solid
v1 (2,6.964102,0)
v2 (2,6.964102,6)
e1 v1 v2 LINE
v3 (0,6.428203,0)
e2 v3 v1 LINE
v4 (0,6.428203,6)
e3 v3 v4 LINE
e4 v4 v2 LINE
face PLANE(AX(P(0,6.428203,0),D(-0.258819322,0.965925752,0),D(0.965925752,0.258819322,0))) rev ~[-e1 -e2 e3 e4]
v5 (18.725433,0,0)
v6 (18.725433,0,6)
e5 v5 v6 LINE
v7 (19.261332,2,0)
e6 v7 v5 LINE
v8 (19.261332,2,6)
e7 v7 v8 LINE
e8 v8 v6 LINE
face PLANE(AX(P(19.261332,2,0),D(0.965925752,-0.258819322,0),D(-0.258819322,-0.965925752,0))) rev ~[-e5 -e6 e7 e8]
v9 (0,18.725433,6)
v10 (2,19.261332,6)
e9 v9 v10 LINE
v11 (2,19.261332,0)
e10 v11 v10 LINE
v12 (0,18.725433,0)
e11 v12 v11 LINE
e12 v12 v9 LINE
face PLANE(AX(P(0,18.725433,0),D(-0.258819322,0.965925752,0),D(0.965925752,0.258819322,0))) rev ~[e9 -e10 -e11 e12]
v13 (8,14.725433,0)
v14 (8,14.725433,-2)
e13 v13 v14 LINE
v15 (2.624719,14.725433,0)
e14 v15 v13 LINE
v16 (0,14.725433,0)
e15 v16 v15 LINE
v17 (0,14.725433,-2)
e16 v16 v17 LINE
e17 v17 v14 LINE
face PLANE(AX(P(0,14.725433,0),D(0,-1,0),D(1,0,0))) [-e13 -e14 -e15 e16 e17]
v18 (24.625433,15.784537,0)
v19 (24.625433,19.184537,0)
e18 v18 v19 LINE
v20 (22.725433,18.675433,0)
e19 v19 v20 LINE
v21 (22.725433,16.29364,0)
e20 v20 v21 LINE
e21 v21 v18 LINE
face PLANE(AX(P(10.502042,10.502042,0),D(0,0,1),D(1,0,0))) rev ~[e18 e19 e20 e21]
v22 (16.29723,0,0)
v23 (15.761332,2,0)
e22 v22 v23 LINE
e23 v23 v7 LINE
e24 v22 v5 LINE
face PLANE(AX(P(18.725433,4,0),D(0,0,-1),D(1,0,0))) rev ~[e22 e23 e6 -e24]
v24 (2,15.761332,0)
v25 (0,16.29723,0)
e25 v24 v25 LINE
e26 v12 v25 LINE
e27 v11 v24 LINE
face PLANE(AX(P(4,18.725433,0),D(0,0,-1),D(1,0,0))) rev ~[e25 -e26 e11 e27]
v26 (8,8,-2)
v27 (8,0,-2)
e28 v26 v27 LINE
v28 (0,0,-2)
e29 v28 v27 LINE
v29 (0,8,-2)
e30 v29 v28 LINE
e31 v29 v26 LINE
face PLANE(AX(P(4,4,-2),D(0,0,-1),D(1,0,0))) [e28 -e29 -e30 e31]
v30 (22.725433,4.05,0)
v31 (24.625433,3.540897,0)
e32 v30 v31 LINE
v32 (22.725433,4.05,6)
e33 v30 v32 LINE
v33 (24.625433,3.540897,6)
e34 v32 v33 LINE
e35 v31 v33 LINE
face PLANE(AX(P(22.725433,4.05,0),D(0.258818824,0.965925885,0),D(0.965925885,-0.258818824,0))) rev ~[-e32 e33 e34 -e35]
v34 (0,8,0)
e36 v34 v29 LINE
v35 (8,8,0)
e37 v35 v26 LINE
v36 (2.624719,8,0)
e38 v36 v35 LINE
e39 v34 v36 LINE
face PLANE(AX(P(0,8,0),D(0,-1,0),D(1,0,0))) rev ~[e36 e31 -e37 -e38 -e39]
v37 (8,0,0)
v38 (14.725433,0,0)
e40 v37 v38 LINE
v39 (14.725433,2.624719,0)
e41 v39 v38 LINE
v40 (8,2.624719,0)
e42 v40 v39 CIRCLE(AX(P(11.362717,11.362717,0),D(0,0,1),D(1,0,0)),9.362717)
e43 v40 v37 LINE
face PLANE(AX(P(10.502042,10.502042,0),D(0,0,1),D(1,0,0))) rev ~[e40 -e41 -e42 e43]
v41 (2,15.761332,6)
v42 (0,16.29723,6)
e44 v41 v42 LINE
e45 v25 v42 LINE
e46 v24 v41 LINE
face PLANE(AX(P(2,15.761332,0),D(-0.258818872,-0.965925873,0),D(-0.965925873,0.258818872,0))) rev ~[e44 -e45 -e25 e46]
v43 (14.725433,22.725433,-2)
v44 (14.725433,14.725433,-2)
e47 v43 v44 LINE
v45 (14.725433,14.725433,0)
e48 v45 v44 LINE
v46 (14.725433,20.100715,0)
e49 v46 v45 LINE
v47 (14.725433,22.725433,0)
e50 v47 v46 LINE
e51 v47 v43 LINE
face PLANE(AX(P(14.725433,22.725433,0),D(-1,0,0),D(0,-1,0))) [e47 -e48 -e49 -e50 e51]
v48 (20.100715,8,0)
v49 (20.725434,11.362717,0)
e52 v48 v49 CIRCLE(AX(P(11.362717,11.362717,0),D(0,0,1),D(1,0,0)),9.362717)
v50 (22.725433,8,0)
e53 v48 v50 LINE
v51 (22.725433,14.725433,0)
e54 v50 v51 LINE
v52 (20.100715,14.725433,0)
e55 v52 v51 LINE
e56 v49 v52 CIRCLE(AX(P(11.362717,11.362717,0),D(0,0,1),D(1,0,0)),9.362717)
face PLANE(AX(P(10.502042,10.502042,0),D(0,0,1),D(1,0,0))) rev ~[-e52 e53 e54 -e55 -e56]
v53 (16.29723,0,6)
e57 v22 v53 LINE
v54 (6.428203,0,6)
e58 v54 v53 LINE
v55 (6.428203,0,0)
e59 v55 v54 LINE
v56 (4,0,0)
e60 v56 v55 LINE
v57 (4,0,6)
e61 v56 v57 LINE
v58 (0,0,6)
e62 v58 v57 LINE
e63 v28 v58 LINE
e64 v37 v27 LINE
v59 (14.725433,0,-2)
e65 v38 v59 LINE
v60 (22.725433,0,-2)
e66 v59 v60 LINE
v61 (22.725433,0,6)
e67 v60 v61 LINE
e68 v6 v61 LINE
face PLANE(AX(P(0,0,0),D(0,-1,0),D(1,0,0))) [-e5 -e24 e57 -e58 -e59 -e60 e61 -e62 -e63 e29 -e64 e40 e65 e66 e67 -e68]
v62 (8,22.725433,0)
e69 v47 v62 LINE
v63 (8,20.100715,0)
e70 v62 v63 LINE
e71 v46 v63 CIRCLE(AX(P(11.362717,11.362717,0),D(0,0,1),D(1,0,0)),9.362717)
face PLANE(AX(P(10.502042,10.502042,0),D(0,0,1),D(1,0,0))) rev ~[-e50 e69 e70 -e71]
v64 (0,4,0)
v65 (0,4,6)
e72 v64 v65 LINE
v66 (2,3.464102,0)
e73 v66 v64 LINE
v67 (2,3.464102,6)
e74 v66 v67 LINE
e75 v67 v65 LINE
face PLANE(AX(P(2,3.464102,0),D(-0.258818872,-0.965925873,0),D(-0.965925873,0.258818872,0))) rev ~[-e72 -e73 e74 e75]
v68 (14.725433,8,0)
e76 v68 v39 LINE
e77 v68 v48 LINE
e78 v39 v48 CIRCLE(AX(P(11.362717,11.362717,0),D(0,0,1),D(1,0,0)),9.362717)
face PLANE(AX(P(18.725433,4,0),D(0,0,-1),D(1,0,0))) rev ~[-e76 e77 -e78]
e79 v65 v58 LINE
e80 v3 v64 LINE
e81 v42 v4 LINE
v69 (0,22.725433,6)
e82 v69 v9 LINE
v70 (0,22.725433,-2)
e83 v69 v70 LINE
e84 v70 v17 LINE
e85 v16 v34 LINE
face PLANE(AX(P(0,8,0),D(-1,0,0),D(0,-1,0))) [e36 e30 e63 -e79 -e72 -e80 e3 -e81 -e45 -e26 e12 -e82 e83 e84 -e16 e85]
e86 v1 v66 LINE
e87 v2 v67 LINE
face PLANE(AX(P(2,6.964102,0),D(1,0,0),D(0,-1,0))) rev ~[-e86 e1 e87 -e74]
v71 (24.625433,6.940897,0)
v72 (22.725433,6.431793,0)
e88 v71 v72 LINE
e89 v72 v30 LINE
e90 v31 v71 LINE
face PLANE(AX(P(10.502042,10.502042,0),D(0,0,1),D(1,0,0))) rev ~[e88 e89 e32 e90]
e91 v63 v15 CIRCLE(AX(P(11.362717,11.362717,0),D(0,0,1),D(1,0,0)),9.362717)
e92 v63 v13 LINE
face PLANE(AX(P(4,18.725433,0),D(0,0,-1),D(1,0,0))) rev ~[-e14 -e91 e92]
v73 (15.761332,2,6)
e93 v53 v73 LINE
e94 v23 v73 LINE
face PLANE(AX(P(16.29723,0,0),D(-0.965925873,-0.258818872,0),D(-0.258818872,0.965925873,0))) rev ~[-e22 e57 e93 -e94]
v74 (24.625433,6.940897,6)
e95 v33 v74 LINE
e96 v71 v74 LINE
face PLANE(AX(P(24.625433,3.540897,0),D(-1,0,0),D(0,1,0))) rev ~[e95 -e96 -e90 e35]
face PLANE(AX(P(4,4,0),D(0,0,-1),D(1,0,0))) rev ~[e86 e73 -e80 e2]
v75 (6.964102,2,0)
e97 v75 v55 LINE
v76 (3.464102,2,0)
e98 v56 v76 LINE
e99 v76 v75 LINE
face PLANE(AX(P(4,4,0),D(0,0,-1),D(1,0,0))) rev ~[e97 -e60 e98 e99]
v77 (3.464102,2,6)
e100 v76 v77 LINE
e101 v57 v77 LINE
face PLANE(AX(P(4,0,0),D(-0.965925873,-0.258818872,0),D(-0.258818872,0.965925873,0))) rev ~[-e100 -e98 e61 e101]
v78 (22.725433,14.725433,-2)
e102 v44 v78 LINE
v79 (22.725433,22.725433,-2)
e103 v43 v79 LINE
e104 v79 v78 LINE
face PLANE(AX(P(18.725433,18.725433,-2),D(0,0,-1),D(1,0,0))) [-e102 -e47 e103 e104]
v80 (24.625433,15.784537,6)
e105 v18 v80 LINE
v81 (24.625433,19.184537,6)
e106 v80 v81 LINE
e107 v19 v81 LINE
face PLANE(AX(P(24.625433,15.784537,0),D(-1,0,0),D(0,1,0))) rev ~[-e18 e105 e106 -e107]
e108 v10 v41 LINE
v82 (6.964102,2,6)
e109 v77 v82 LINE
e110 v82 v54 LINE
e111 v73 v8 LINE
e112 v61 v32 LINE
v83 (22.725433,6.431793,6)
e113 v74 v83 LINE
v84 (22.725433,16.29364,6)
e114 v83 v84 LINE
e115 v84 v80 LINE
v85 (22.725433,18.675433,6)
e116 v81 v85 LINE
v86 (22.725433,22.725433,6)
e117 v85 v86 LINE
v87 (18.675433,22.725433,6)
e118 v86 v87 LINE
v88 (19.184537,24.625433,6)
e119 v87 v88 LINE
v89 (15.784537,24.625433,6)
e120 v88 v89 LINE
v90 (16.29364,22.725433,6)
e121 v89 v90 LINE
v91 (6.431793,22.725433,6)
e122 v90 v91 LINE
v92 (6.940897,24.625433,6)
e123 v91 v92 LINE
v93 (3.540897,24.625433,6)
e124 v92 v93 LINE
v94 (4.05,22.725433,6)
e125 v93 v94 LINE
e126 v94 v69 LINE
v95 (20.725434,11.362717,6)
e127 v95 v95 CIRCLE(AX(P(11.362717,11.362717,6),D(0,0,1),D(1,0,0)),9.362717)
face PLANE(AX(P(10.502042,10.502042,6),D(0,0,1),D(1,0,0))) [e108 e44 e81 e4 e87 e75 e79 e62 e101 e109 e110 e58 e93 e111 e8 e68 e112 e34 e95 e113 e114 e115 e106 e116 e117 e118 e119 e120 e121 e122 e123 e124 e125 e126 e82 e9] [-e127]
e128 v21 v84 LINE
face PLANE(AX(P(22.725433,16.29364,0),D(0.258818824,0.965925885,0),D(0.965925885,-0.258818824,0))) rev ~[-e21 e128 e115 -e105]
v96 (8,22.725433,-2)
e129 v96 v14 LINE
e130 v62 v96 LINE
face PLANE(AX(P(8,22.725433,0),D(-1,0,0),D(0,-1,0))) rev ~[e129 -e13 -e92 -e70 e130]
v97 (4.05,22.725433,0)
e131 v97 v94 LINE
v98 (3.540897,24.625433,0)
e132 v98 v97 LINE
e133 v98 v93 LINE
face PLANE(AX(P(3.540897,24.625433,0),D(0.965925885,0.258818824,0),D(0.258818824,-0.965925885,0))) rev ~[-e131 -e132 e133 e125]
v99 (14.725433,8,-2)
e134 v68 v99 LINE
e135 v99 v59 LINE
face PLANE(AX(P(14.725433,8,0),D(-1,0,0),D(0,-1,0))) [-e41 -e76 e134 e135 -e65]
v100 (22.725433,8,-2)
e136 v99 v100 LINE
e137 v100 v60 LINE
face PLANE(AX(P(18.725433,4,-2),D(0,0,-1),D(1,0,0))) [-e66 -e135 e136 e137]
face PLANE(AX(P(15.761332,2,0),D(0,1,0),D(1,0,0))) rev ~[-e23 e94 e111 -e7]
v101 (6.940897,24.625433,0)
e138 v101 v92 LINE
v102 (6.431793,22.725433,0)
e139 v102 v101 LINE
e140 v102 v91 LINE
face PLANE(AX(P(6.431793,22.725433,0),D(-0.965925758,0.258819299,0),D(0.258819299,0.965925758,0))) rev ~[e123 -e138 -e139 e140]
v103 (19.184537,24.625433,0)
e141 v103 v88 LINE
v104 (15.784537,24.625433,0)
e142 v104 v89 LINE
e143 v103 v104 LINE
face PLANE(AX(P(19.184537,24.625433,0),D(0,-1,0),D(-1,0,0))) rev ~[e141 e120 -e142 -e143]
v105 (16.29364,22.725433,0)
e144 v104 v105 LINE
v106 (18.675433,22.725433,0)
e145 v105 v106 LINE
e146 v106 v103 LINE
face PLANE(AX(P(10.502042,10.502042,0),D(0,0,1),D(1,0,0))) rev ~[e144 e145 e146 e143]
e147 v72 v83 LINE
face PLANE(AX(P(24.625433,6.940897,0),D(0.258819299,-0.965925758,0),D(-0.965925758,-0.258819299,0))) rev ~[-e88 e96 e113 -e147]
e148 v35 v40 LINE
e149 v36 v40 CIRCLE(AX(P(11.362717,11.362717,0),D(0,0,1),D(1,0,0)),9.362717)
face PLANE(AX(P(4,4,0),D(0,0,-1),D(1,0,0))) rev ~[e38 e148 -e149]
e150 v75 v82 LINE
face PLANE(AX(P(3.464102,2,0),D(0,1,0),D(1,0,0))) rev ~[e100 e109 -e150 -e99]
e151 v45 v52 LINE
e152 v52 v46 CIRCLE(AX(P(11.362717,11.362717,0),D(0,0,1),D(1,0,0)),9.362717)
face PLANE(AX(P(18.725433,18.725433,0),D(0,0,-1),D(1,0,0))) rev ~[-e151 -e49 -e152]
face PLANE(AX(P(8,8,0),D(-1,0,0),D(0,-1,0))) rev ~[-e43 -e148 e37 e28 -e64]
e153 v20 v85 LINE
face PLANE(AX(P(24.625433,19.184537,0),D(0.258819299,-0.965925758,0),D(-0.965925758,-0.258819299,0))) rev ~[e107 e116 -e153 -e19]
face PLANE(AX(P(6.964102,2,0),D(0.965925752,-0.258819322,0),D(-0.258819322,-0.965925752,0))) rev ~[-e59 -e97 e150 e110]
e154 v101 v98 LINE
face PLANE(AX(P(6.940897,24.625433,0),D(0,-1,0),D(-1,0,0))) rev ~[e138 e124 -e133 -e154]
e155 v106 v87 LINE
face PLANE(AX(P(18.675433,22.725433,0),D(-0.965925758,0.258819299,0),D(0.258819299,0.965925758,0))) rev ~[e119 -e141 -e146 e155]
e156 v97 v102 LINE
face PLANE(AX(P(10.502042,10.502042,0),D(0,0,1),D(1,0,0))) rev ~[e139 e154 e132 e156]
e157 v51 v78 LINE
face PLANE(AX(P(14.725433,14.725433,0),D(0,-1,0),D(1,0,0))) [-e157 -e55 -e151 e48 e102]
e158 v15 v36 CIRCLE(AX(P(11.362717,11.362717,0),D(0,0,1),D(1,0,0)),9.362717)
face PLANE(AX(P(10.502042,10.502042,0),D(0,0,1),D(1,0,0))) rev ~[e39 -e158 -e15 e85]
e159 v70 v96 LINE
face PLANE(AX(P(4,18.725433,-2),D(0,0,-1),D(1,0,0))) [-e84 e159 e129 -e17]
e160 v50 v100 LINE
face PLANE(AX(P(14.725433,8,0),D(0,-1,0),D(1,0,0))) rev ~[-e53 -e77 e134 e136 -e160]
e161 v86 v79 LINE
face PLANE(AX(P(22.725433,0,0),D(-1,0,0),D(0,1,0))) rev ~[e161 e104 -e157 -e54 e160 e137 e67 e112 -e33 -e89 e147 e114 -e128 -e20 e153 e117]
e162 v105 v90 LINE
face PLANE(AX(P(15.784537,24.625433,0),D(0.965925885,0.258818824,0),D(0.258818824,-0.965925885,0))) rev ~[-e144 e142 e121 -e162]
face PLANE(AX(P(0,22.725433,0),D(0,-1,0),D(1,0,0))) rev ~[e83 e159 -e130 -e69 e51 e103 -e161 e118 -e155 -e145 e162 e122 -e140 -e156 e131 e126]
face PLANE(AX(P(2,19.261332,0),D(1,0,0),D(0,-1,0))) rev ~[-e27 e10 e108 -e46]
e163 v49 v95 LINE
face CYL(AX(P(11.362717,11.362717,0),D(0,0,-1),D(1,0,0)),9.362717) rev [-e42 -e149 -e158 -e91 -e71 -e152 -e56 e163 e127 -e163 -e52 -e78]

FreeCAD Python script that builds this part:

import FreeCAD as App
import Part
import Sketcher

V = App.Vector
Q = App.Units.Quantity


def add_polygon(sketch, points):
    """Adds a closed chain of lines whose ends are joined by coincident constraints."""
    first, n = sketch.GeometryCount, len(points)
    for a, b in zip(points, points[1:] + points[:1]):
        sketch.addGeometry(Part.LineSegment(App.Vector(*a, 0), App.Vector(*b, 0)), False)
    for i in range(n):
        sketch.addConstraint(Sketcher.Constraint("Coincident", first + i, 2, first + (i + 1) % n, 1))

doc = App.newDocument("Part")
body = doc.addObject("PartDesign::Body", "Body")

sketch1 = body.newObject("Sketcher::SketchObject", "Sketch")
sketch1.AttachmentSupport = (doc.getObject("XY_Plane"), [""])
sketch1.MapMode = "FlatFace"
add_polygon(sketch1, [(0, 4), (0, 0), (4, 0), (3.5, 2), (7, 2), (6.4, 0), (16.3, 0), (15.8, 2), (19.3, 2), (18.7, 0), (22.7, 0), (22.7, 4), (24.6, 3.5), (24.6, 6.9), (22.7, 6.4), (22.7, 16.3), (24.6, 15.8), (24.6, 19.2), (22.7, 18.7), (22.7, 22.7), (18.7, 22.7), (19.2, 24.6), (15.8, 24.6), (16.3, 22.7), (6.4, 22.7), (6.9, 24.6), (3.5, 24.6), (4, 22.7), (0, 22.7), (0, 18.7), (2, 19.3), (2, 15.8), (0, 16.3), (0, 6.4), (2, 7), (2, 3.5)])
sketch1.addGeometry(Part.Circle(V(11.4, 11.4, 0), V(0, 0, 1), 9.4), False)
sketch1.addConstraint(Sketcher.Constraint("Vertical", 0))
sketch1.addConstraint(Sketcher.Constraint("Horizontal", 1))
sketch1.addConstraint(Sketcher.Constraint("Horizontal", 3))
sketch1.addConstraint(Sketcher.Constraint("Horizontal", 5))
sketch1.addConstraint(Sketcher.Constraint("Horizontal", 7))
sketch1.addConstraint(Sketcher.Constraint("Horizontal", 9))
sketch1.addConstraint(Sketcher.Constraint("Vertical", 10))
sketch1.addConstraint(Sketcher.Constraint("Vertical", 12))
sketch1.addConstraint(Sketcher.Constraint("Vertical", 14))
sketch1.addConstraint(Sketcher.Constraint("Vertical", 16))
sketch1.addConstraint(Sketcher.Constraint("Vertical", 18))
sketch1.addConstraint(Sketcher.Constraint("Horizontal", 19))
sketch1.addConstraint(Sketcher.Constraint("Horizontal", 21))
sketch1.addConstraint(Sketcher.Constraint("Horizontal", 23))
sketch1.addConstraint(Sketcher.Constraint("Horizontal", 25))
sketch1.addConstraint(Sketcher.Constraint("Horizontal", 27))
sketch1.addConstraint(Sketcher.Constraint("Vertical", 28))
sketch1.addConstraint(Sketcher.Constraint("Vertical", 30))
sketch1.addConstraint(Sketcher.Constraint("Vertical", 32))
sketch1.addConstraint(Sketcher.Constraint("Vertical", 34))
sketch1.addConstraint(Sketcher.Constraint("Coincident", 0, 2, -1, 1))
sketch1.addConstraint(Sketcher.Constraint("PointOnObject", 4, 2, -1))
sketch1.addConstraint(Sketcher.Constraint("PointOnObject", 8, 2, -1))
sketch1.addConstraint(Sketcher.Constraint("PointOnObject", 27, 2, -2))
sketch1.addConstraint(Sketcher.Constraint("PointOnObject", 31, 2, -2))
sketch1.addConstraint(Sketcher.Constraint("Parallel", 2, 6))
sketch1.addConstraint(Sketcher.Constraint("Parallel", 4, 8))
sketch1.addConstraint(Sketcher.Constraint("Perpendicular", 8, 11))
sketch1.addConstraint(Sketcher.Constraint("Perpendicular", 6, 13))
sketch1.addConstraint(Sketcher.Constraint("Parallel", 11, 15))
sketch1.addConstraint(Sketcher.Constraint("Parallel", 13, 17))
sketch1.addConstraint(Sketcher.Constraint("Perpendicular", 15, 20))
sketch1.addConstraint(Sketcher.Constraint("Perpendicular", 17, 22))
sketch1.addConstraint(Sketcher.Constraint("Parallel", 20, 24))
sketch1.addConstraint(Sketcher.Constraint("Parallel", 22, 26))
sketch1.addConstraint(Sketcher.Constraint("Perpendicular", 26, 29))
sketch1.addConstraint(Sketcher.Constraint("Perpendicular", 24, 31))
sketch1.addConstraint(Sketcher.Constraint("Parallel", 29, 33))
sketch1.addConstraint(Sketcher.Constraint("Parallel", 31, 35))
sketch1.addConstraint(Sketcher.Constraint("Horizontal", 3, 2, 6, 2))
sketch1.addConstraint(Sketcher.Constraint("Horizontal", 19, 2, 22, 2))
sketch1.addConstraint(Sketcher.Constraint("Horizontal", 21, 2, 24, 2))
sketch1.addConstraint(Sketcher.Constraint("Horizontal", 23, 2, 26, 2))
sketch1.addConstraint(Sketcher.Constraint("Vertical", 10, 2, 13, 2))
sketch1.addConstraint(Sketcher.Constraint("Vertical", 12, 2, 15, 2))
sketch1.addConstraint(Sketcher.Constraint("Vertical", 14, 2, 17, 2))
sketch1.addConstraint(Sketcher.Constraint("Vertical", 30, 2, 33, 2))
sketch1.addConstraint(Sketcher.Constraint("Equal", 3, 7))
sketch1.addConstraint(Sketcher.Constraint("Equal", 1, 9))
sketch1.addConstraint(Sketcher.Constraint("Equal", 21, 25))
sketch1.addConstraint(Sketcher.Constraint("Equal", 19, 27))
sketch1.addConstraint(Sketcher.Constraint("Equal", 9, 0))
sketch1.addConstraint(Sketcher.Constraint("Equal", 27, 10))
sketch1.addConstraint(Sketcher.Constraint("Equal", 25, 12))
sketch1.addConstraint(Sketcher.Constraint("Equal", 23, 14))
sketch1.addConstraint(Sketcher.Constraint("Equal", 12, 16))
sketch1.addConstraint(Sketcher.Constraint("Equal", 10, 18))
sketch1.addConstraint(Sketcher.Constraint("Equal", 0, 28))
sketch1.addConstraint(Sketcher.Constraint("Equal", 7, 30))
sketch1.addConstraint(Sketcher.Constraint("Equal", 5, 32))
sketch1.addConstraint(Sketcher.Constraint("Equal", 30, 34))
sketch1.addConstraint(Sketcher.Constraint("Equal", 2, 4))
sketch1.addConstraint(Sketcher.Constraint("Equal", 17, 20))
sketch1.addConstraint(Sketcher.Constraint("DistanceX", 1, 1, 1, 2, 4.0))
sketch1.addConstraint(Sketcher.Constraint("Angle", 2, Q("104.99999 deg")))
sketch1.addConstraint(Sketcher.Constraint("DistanceX", 3, 1, 3, 2, 3.5))
sketch1.addConstraint(Sketcher.Constraint("DistanceX", 21, 2, 21, 1, 3.4))
sketch1.addConstraint(Sketcher.Constraint("DistanceY", -1, 1, 2, 2, 2.0))
sketch1.addConstraint(Sketcher.Constraint("DistanceX", 19, 2, 19, 1, 4.05))
sketch1.addConstraint(Sketcher.Constraint("DistanceX", 10, 2, 11, 2, 1.9))
sketch1.addConstraint(Sketcher.Constraint("Diameter", 36, 18.725434))
sketch1.addConstraint(Sketcher.Constraint("DistanceX", 5, 1, 5, 2, 9.869027))
sketch1.addConstraint(Sketcher.Constraint("DistanceX", -1, 1, 36, 3, 11.362717))
sketch1.addConstraint(Sketcher.Constraint("DistanceY", -1, 1, 36, 3, 11.362717))
pad1 = body.newObject("PartDesign::Pad", "Pad")
pad1.Profile = sketch1
pad1.Length = 6

sketch2 = body.newObject("Sketcher::SketchObject", "Sketch001")
sketch2.AttachmentSupport = (doc.getObject("XY_Plane"), [""])
sketch2.MapMode = "FlatFace"
add_polygon(sketch2, [(0, 0), (0, 8), (8, 8), (8, 0)])
add_polygon(sketch2, [(0, 15), (0, 23), (8, 23), (8, 15)])
add_polygon(sketch2, [(15, 15), (15, 23), (23, 23), (23, 15)])
add_polygon(sketch2, [(15, 0), (15, 8), (23, 8), (23, 0)])
sketch2.addConstraint(Sketcher.Constraint("Vertical", 0))
sketch2.addConstraint(Sketcher.Constraint("Horizontal", 1))
sketch2.addConstraint(Sketcher.Constraint("Vertical", 2))
sketch2.addConstraint(Sketcher.Constraint("Horizontal", 3))
sketch2.addConstraint(Sketcher.Constraint("Vertical", 4))
sketch2.addConstraint(Sketcher.Constraint("Horizontal", 5))
sketch2.addConstraint(Sketcher.Constraint("Vertical", 6))
sketch2.addConstraint(Sketcher.Constraint("Horizontal", 7))
sketch2.addConstraint(Sketcher.Constraint("Vertical", 8))
sketch2.addConstraint(Sketcher.Constraint("Horizontal", 9))
sketch2.addConstraint(Sketcher.Constraint("Vertical", 10))
sketch2.addConstraint(Sketcher.Constraint("Horizontal", 11))
sketch2.addConstraint(Sketcher.Constraint("Vertical", 12))
sketch2.addConstraint(Sketcher.Constraint("Horizontal", 13))
sketch2.addConstraint(Sketcher.Constraint("Vertical", 14))
sketch2.addConstraint(Sketcher.Constraint("Horizontal", 15))
sketch2.addConstraint(Sketcher.Constraint("Coincident", 3, 2, -1, 1))
sketch2.addConstraint(Sketcher.Constraint("PointOnObject", 4, 2, -2))
sketch2.addConstraint(Sketcher.Constraint("PointOnObject", 14, 2, -1))
sketch2.addConstraint(Sketcher.Constraint("Horizontal", 5, 2, 8, 2))
sketch2.addConstraint(Sketcher.Constraint("Horizontal", 7, 2, 10, 2))
sketch2.addConstraint(Sketcher.Constraint("Horizontal", 1, 2, 12, 2))
sketch2.addConstraint(Sketcher.Constraint("Vertical", 2, 2, 5, 2))
sketch2.addConstraint(Sketcher.Constraint("Vertical", 11, 2, 12, 2))
sketch2.addConstraint(Sketcher.Constraint("Vertical", 10, 2, 13, 2))
sketch2.addConstraint(Sketcher.Constraint("Equal", 7, 9))
sketch2.addConstraint(Sketcher.Constraint("Equal", 15, 0))
sketch2.addConstraint(Sketcher.Constraint("Equal", 2, 4))
sketch2.addConstraint(Sketcher.Constraint("DistanceX", 1, 1, 1, 2, 8.0))
sketch2.addConstraint(Sketcher.Constraint("DistanceY", -1, 1, 4, 2, 22.725433))
sketch2.addConstraint(Sketcher.Constraint("DistanceX", -1, 1, 8, 2, 14.725433))
pad2 = body.newObject("PartDesign::Pad", "Pad001")
pad2.Profile = sketch2
pad2.Length = 2
pad2.Reversed = True

doc.recompute()
